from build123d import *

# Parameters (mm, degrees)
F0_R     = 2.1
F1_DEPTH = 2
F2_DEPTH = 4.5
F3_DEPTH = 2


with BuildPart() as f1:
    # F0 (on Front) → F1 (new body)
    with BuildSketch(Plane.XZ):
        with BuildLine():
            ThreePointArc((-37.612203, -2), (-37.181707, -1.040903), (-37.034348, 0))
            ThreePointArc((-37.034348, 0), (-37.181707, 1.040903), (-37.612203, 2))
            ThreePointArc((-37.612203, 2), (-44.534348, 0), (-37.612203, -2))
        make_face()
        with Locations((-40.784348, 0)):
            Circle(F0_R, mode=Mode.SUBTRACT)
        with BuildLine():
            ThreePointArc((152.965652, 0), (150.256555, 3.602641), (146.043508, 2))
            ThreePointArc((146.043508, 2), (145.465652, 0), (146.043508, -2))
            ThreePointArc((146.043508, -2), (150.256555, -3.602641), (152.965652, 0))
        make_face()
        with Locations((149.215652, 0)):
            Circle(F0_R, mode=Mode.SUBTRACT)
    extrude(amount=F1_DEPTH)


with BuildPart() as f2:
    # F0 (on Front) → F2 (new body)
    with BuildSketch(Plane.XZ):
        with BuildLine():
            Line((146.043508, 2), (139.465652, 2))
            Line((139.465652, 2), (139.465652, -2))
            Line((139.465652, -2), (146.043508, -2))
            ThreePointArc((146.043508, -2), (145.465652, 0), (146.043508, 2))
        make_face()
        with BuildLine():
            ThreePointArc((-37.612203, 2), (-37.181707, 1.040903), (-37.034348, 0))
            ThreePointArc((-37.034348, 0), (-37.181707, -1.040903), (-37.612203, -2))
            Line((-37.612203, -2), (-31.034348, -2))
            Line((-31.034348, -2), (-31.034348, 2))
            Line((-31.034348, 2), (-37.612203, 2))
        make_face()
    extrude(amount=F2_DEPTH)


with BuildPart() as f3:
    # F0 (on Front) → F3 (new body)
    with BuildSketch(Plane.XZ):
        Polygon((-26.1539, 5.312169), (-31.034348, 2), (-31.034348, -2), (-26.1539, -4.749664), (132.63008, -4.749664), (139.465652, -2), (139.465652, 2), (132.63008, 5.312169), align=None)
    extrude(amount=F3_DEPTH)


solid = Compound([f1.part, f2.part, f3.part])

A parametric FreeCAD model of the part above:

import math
import FreeCAD as App
import Part
import Sketcher
from FreeCAD import Vector
Q = App.Units.Quantity

doc = App.newDocument("Part")
params = doc.addObject("Spreadsheet::Sheet", "Params")
for row, (alias, value) in enumerate([
    ("sketch1_diameter", "4.2 mm"),
    ("sketch1_radius", "3.75 mm"),
    ("pad1_length", "2 mm"),
    ("sketch2_height", "4 mm"),
    ("pad2_length", "4.5 mm"),
    ("sketch3_height", "4 mm"),
    ("pad3_length", "2 mm"),
], start=1):
    params.set(f"A{row}", alias)
    params.set(f"B{row}", "=" + value)
    params.setAlias(f"B{row}", alias)

body = doc.addObject("PartDesign::Body", "Body")
body.AllowCompound = True

# Sketch on XZ plane
sketch1 = body.newObject("Sketcher::SketchObject", "Sketch")
sketch1.AttachmentSupport = (doc.getObject("XZ_Plane"), [""])
sketch1.MapMode = "FlatFace"
sketch1.addGeometry([
    Part.ArcOfCircle(Part.Circle(Vector(-40.8, 0, 0), Vector(0, 0, 1), 3.8), math.radians(-32), math.radians(0)),  # 0
    Part.ArcOfCircle(Part.Circle(Vector(-40.8, 0, 0), Vector(0, 0, 1), 3.8), math.radians(0), math.radians(32)),  # 1
    Part.ArcOfCircle(Part.Circle(Vector(-40.8, 0, 0), Vector(0, 0, 1), 3.8), math.radians(32), math.radians(328)),  # 2
    Part.Circle(Vector(-40.8, 0, 0), Vector(0, 0, 1), 2.1),  # 3
    Part.ArcOfCircle(Part.Circle(Vector(149.2, 0, 0), Vector(0, 0, 1), 3.7), math.radians(0), math.radians(148)),  # 4
    Part.ArcOfCircle(Part.Circle(Vector(149.2, 0, 0), Vector(0, 0, 1), 3.7), math.radians(148), math.radians(212)),  # 5
    Part.ArcOfCircle(Part.Circle(Vector(149.2, 0, 0), Vector(0, 0, 1), 3.7), math.radians(-148), math.radians(0)),  # 6
    Part.Circle(Vector(149.2, 0, 0), Vector(0, 0, 1), 2.1),  # 7
], False)
sketch1.addConstraint([
    Sketcher.Constraint("Tangent", 0, 2, 1, 1),
    Sketcher.Constraint("Tangent", 1, 2, 2, 1),
    Sketcher.Constraint("Tangent", 2, 2, 0, 1),
    Sketcher.Constraint("Tangent", 4, 2, 5, 1),
    Sketcher.Constraint("Tangent", 5, 2, 6, 1),
    Sketcher.Constraint("Tangent", 6, 2, 4, 1),
    Sketcher.Constraint("Coincident", 3, 3, 0, 3),
    Sketcher.Constraint("Coincident", 7, 3, 4, 3),
    Sketcher.Constraint("Equal", 2, 4),
    Sketcher.Constraint("Equal", 3, 7),
    Sketcher.Constraint("Symmetric", 1, 2, 2, 2, -1),
    Sketcher.Constraint("Symmetric", 4, 2, 5, 2, -1),
    Sketcher.Constraint("PointOnObject", 0, 2, -1),
    Sketcher.Constraint("PointOnObject", 6, 2, -1),
    Sketcher.Constraint("Horizontal", 1, 2, 4, 2),
    Sketcher.Constraint("Diameter", 3, Q("4.2 mm")),
    Sketcher.Constraint("Radius", 2, Q("3.75 mm")),
    Sketcher.Constraint("DistanceY", -1, 1, 1, 2, Q("2 mm")),
    Sketcher.Constraint("DistanceX", 2, 3, 4, 3, Q("190 mm")),
    Sketcher.Constraint("DistanceX", 0, 3, -1, 1, Q("40.784351 mm")),
])
sketch1.setExpression("Constraints[15]", "Params.sketch1_diameter")
sketch1.setExpression("Constraints[16]", "Params.sketch1_radius")
pad1 = body.newObject("PartDesign::Pad", "Pad")
pad1.Profile = sketch1
pad1.setExpression("Length", "Params.pad1_length")
body2 = doc.addObject("PartDesign::Body", "Body001")
body2.AllowCompound = True

# Sketch on XZ plane
sketch2 = body2.newObject("Sketcher::SketchObject", "Sketch001")
sketch2.AttachmentSupport = (doc.getObject("XZ_Plane001"), [""])
sketch2.MapMode = "FlatFace"
sketch2.addGeometry([
    Part.LineSegment(Vector(146, 2, 0), Vector(139.5, 2, 0)),  # 0
    Part.LineSegment(Vector(139.5, 2, 0), Vector(139.5, -2, 0)),  # 1
    Part.LineSegment(Vector(139.5, -2, 0), Vector(146, -2, 0)),  # 2
    Part.ArcOfCircle(Part.Circle(Vector(149.2, 0, 0), Vector(0, 0, 1), 3.7), math.radians(148), math.radians(212)),  # 3
    Part.ArcOfCircle(Part.Circle(Vector(-40.8, 0, 0), Vector(0, 0, 1), 3.8), math.radians(0), math.radians(32)),  # 4
    Part.ArcOfCircle(Part.Circle(Vector(-40.8, 0, 0), Vector(0, 0, 1), 3.8), math.radians(-32), math.radians(0)),  # 5
    Part.LineSegment(Vector(-37.6, -2, 0), Vector(-31, -2, 0)),  # 6
    Part.LineSegment(Vector(-31, -2, 0), Vector(-31, 2, 0)),  # 7
    Part.LineSegment(Vector(-31, 2, 0), Vector(-37.6, 2, 0)),  # 8
], False)
sketch2.addConstraint([
    Sketcher.Constraint("Coincident", 0, 2, 1, 1),
    Sketcher.Constraint("Coincident", 1, 2, 2, 1),
    Sketcher.Constraint("Coincident", 2, 2, 3, 2),
    Sketcher.Constraint("Coincident", 3, 1, 0, 1),
    Sketcher.Constraint("Tangent", 4, 1, 5, 2),
    Sketcher.Constraint("Coincident", 5, 1, 6, 1),
    Sketcher.Constraint("Coincident", 6, 2, 7, 1),
    Sketcher.Constraint("Coincident", 7, 2, 8, 1),
    Sketcher.Constraint("Coincident", 8, 2, 4, 2),
    Sketcher.Constraint("Horizontal", 0),
    Sketcher.Constraint("Vertical", 1),
    Sketcher.Constraint("Horizontal", 2),
    Sketcher.Constraint("Horizontal", 6),
    Sketcher.Constraint("Vertical", 7),
    Sketcher.Constraint("Horizontal", 8),
    Sketcher.Constraint("Equal", 4, 5),
    Sketcher.Constraint("Symmetric", 2, 2, 3, 1, -1),
    Sketcher.Constraint("Symmetric", 5, 1, 8, 2, -1),
    Sketcher.Constraint("PointOnObject", 4, 1, -1),
    Sketcher.Constraint("Horizontal", 2, 2, 5, 1),
    Sketcher.Constraint("Equal", 2, 6),
    Sketcher.Constraint("DistanceY", 1, 2, 1, 1, Q("4 mm")),
    Sketcher.Constraint("DistanceX", 4, 3, 3, 3, Q("190 mm")),
    Sketcher.Constraint("DistanceX", 4, 1, 6, 2, Q("6 mm")),
    Sketcher.Constraint("DistanceX", 4, 1, 0, 2, Q("176.5 mm")),
    Sketcher.Constraint("Radius", 3, Q("3.749998 mm")),
    Sketcher.Constraint("DistanceX", -1, 1, 3, 3, Q("149.21565 mm")),
])
sketch2.setExpression("Constraints[21]", "Params.sketch2_height")
pad2 = body2.newObject("PartDesign::Pad", "Pad001")
pad2.Profile = sketch2
pad2.setExpression("Length", "Params.pad2_length")
body3 = doc.addObject("PartDesign::Body", "Body002")

# Sketch on XZ plane
sketch3 = body3.newObject("Sketcher::SketchObject", "Sketch002")
sketch3.AttachmentSupport = (doc.getObject("XZ_Plane002"), [""])
sketch3.MapMode = "FlatFace"
sketch3.addGeometry([
    Part.LineSegment(Vector(-26.2, 5.3, 0), Vector(-31, 2, 0)),  # 0
    Part.LineSegment(Vector(-31, 2, 0), Vector(-31, -2, 0)),  # 1
    Part.LineSegment(Vector(-31, -2, 0), Vector(-26.2, -4.7, 0)),  # 2
    Part.LineSegment(Vector(-26.2, -4.7, 0), Vector(132.6, -4.7, 0)),  # 3
    Part.LineSegment(Vector(132.6, -4.7, 0), Vector(139.5, -2, 0)),  # 4
    Part.LineSegment(Vector(139.5, -2, 0), Vector(139.5, 2, 0)),  # 5
    Part.LineSegment(Vector(139.5, 2, 0), Vector(132.6, 5.3, 0)),  # 6
    Part.LineSegment(Vector(132.6, 5.3, 0), Vector(-26.2, 5.3, 0)),  # 7
], False)
sketch3.addConstraint([
    Sketcher.Constraint("Coincident", 0, 2, 1, 1),
    Sketcher.Constraint("Coincident", 1, 2, 2, 1),
    Sketcher.Constraint("Coincident", 2, 2, 3, 1),
    Sketcher.Constraint("Coincident", 3, 2, 4, 1),
    Sketcher.Constraint("Coincident", 4, 2, 5, 1),
    Sketcher.Constraint("Coincident", 5, 2, 6, 1),
    Sketcher.Constraint("Coincident", 6, 2, 7, 1),
    Sketcher.Constraint("Coincident", 7, 2, 0, 1),
    Sketcher.Constraint("Vertical", 1),
    Sketcher.Constraint("Horizontal", 3),
    Sketcher.Constraint("Vertical", 5),
    Sketcher.Constraint("Horizontal", 7),
    Sketcher.Constraint("Horizontal", 1, 2, 4, 2),
    Sketcher.Constraint("Horizontal", 0, 2, 5, 2),
    Sketcher.Constraint("Vertical", 3, 2, 6, 2),
    Sketcher.Constraint("Vertical", 2, 2, 7, 2),
    Sketcher.Constraint("DistanceY", 1, 2, 1, 1, Q("4 mm")),
    Sketcher.Constraint("DistanceY", -1, 1, 0, 2, Q("2 mm")),
    Sketcher.Constraint("DistanceX", 1, 2, 4, 2, Q("170.5 mm")),
    Sketcher.Constraint("DistanceX", 3, 1, 3, 2, Q("158.78398 mm")),
    Sketcher.Constraint("DistanceX", 2, 2, -1, 1, Q("26.1539 mm")),
    Sketcher.Constraint("Distance", 0, Q("5.89824 mm")),
    Sketcher.Constraint("DistanceX", 0, 2, -1, 1, Q("31.034348 mm")),
    Sketcher.Constraint("Distance", 2, Q("5.601734 mm")),
])
sketch3.setExpression("Constraints[16]", "Params.sketch3_height")
pad3 = body3.newObject("PartDesign::Pad", "Pad002")
pad3.Profile = sketch3
pad3.setExpression("Length", "Params.pad3_length")

doc.recompute()
